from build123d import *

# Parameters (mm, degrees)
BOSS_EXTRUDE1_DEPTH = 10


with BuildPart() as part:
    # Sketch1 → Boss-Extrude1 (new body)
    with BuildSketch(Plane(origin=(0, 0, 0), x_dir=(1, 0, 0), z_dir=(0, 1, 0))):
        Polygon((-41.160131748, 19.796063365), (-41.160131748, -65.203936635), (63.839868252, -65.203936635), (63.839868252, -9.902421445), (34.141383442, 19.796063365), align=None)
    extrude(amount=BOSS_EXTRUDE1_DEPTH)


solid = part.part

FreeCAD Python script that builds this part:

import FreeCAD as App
import Part
import Sketcher

V = App.Vector
Q = App.Units.Quantity

doc = App.newDocument("Part")
params = doc.addObject("Spreadsheet::Sheet", "Params")
for row, (alias, value) in enumerate([
    ("sketch1_width", "105 mm"),
    ("sketch1_height", "85 mm"),
    ("sketch1_length", "42 mm"),
    ("pad1_length", "10 mm"),
], start=1):
    params.set(f"A{row}", alias)
    params.set(f"B{row}", "=" + value)
    params.setAlias(f"B{row}", alias)

body = doc.addObject("PartDesign::Body", "Body")

sketch1 = body.newObject("Sketcher::SketchObject", "Sketch")
sketch1.AttachmentSupport = (doc.getObject("XZ_Plane"), [""])
sketch1.MapMode = "FlatFace"
sketch1.addGeometry([
    Part.LineSegment(V(-41.160132, -19.796063, 0), V(-41.160132, 65.203937, 0)),
    Part.LineSegment(V(-41.160132, 65.203937, 0), V(63.839868, 65.203937, 0)),
    Part.LineSegment(V(63.839868, 65.203937, 0), V(63.839868, 9.902421, 0)),
    Part.LineSegment(V(63.839868, 9.902421, 0), V(34.141383, -19.796063, 0)),
    Part.LineSegment(V(34.141383, -19.796063, 0), V(-41.160132, -19.796063, 0)),
], False)
sketch1.addConstraint([
    Sketcher.Constraint("Coincident", 0, 2, 1, 1),
    Sketcher.Constraint("Coincident", 1, 2, 2, 1),
    Sketcher.Constraint("Coincident", 2, 2, 3, 1),
    Sketcher.Constraint("Coincident", 3, 2, 4, 1),
    Sketcher.Constraint("Coincident", 4, 2, 0, 1),
    Sketcher.Constraint("Vertical", 0),
    Sketcher.Constraint("Horizontal", 1),
    Sketcher.Constraint("Vertical", 2),
    Sketcher.Constraint("Horizontal", 4),
    Sketcher.Constraint("DistanceX", 1, 1, 1, 2, 105.0),
    Sketcher.Constraint("DistanceY", 0, 1, 0, 2, 85.0),
    Sketcher.Constraint("Angle", 3, Q("-135 deg")),
    Sketcher.Constraint("Distance", 3, 42.0),
    Sketcher.Constraint("DistanceX", 0, 2, -1, 1, 41.160132),
    Sketcher.Constraint("DistanceY", -1, 1, 2, 2, 9.902421),
])
sketch1.setExpression("Constraints[9]", "Params.sketch1_width")
sketch1.setExpression("Constraints[10]", "Params.sketch1_height")
sketch1.setExpression("Constraints[12]", "Params.sketch1_length")
pad1 = body.newObject("PartDesign::Pad", "Pad")
pad1.Profile = sketch1
pad1.setExpression("Length", "Params.pad1_length")
pad1.Reversed = True

doc.recompute()
